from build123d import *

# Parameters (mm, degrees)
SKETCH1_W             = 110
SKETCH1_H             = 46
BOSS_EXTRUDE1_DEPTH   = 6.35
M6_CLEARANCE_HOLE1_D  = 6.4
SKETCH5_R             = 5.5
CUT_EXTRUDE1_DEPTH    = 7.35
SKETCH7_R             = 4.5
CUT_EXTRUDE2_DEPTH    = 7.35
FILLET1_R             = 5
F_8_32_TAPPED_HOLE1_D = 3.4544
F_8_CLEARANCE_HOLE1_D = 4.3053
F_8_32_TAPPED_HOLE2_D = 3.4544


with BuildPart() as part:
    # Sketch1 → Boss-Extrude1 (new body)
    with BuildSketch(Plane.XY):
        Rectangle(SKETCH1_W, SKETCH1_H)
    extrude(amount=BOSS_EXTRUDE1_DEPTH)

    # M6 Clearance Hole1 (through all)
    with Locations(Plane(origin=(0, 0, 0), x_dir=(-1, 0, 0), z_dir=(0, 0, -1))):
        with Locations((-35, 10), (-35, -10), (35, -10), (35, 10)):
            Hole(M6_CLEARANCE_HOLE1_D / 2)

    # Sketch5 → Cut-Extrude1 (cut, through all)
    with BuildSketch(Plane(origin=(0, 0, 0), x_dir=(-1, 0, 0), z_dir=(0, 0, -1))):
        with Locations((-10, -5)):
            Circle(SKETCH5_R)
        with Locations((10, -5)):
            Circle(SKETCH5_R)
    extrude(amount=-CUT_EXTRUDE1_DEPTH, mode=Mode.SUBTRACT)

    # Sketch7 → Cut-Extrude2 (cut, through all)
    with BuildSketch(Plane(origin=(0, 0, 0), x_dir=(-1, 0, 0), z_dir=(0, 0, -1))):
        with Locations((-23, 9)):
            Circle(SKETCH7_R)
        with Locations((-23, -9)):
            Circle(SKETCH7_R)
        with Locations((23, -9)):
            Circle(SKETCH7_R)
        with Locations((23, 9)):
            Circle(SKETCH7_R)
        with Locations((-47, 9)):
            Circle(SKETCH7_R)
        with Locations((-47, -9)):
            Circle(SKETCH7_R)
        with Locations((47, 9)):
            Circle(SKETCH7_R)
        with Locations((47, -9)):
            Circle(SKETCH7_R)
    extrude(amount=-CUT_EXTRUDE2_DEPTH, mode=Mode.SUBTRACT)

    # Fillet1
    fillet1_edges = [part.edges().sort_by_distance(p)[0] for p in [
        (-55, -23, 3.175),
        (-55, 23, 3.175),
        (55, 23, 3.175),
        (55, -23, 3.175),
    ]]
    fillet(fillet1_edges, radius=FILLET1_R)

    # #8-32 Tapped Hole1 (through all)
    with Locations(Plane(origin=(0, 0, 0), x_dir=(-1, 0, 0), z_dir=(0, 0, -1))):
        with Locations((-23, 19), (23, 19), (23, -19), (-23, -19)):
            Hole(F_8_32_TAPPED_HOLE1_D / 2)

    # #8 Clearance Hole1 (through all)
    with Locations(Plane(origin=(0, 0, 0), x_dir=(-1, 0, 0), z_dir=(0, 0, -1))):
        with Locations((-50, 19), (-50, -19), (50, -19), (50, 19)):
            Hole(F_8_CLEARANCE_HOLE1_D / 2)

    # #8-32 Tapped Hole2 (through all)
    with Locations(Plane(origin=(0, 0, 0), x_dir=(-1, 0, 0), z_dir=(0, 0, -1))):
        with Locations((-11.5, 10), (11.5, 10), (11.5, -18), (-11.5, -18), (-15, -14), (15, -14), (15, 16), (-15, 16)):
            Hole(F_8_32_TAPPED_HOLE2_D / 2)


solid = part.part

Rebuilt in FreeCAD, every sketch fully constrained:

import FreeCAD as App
import Part
import Sketcher
from FreeCAD import Vector


def edges_at(feature, points):
    """Names of the edges that pass closest to the given points."""
    edges = feature.Shape.Edges
    near = lambda p: min(range(len(edges)), key=lambda i: edges[i].distToShape(Part.Vertex(*p))[0])
    return sorted({f"Edge{near(p) + 1}" for p in points})


def add_polygon(sketch, points):
    """Adds a closed chain of lines whose ends are joined by coincident constraints."""
    first, n = sketch.GeometryCount, len(points)
    for a, b in zip(points, points[1:] + points[:1]):
        sketch.addGeometry(Part.LineSegment(App.Vector(*a, 0), App.Vector(*b, 0)), False)
    for i in range(n):
        sketch.addConstraint(Sketcher.Constraint("Coincident", first + i, 2, first + (i + 1) % n, 1))

doc = App.newDocument("Part")
body = doc.addObject("PartDesign::Body", "Body")

sketch1 = body.newObject("Sketcher::SketchObject", "Sketch")
sketch1.AttachmentSupport = (doc.getObject("XY_Plane"), [""])
sketch1.MapMode = "FlatFace"
add_polygon(sketch1, [(-55, 23), (-55, -23), (55, -23), (55, 23)])
sketch1.addConstraint([
    Sketcher.Constraint("Vertical", 0),
    Sketcher.Constraint("Horizontal", 1),
    Sketcher.Constraint("Vertical", 2),
    Sketcher.Constraint("Horizontal", 3),
    Sketcher.Constraint("Symmetric", 0, 2, 2, 2, -1, 1),
    Sketcher.Constraint("DistanceX", 1, 1, 1, 2, 110.0),
    Sketcher.Constraint("DistanceY", 0, 2, 0, 1, 46.0),
])
pad1 = body.newObject("PartDesign::Pad", "Pad")
pad1.Profile = sketch1
pad1.Length = 6.35

sketch2 = body.newObject("Sketcher::SketchObject", "Sketch001")
sketch2.AttachmentSupport = (doc.getObject("XY_Plane"), [""])
sketch2.MapMode = "FlatFace"
sketch2.addGeometry([
    Part.Circle(Vector(35, 10, 0), Vector(0, 0, 1), 3.2),
    Part.Circle(Vector(35, -10, 0), Vector(0, 0, 1), 3.2),
    Part.Circle(Vector(-35, -10, 0), Vector(0, 0, 1), 3.2),
    Part.Circle(Vector(-35, 10, 0), Vector(0, 0, 1), 3.2),
], False)
sketch2.addConstraint([
    Sketcher.Constraint("Equal", 0, 1),
    Sketcher.Constraint("Equal", 1, 2),
    Sketcher.Constraint("Equal", 2, 3),
    Sketcher.Constraint("Symmetric", 0, 3, 2, 3, -1, 1),
    Sketcher.Constraint("Symmetric", 1, 3, 3, 3, -1, 1),
    Sketcher.Constraint("Symmetric", 1, 3, 2, 3, -2),
    Sketcher.Constraint("Diameter", 0, 6.4),
    Sketcher.Constraint("DistanceX", -1, 1, 0, 3, 35.0),
    Sketcher.Constraint("DistanceY", -1, 1, 0, 3, 10.0),
])
doc.recompute()
hole = body.newObject("PartDesign::Hole", "Hole")
hole.Profile = sketch2
hole.ThreadType = "None"
hole.Diameter = 6.4
hole.DepthType = "ThroughAll"
hole.Reversed = True

sketch3 = body.newObject("Sketcher::SketchObject", "Sketch002")
sketch3.AttachmentSupport = (doc.getObject("XY_Plane"), [""])
sketch3.MapMode = "FlatFace"
sketch3.addGeometry([
    Part.Circle(Vector(10, -5, 0), Vector(0, 0, 1), 6),
    Part.Circle(Vector(-10, -5, 0), Vector(0, 0, 1), 6),
], False)
sketch3.addConstraint([
    Sketcher.Constraint("Equal", 0, 1),
    Sketcher.Constraint("Symmetric", 0, 3, 1, 3, -2),
    Sketcher.Constraint("Diameter", 0, 11.0),
    Sketcher.Constraint("DistanceX", -1, 1, 0, 3, 10.0),
    Sketcher.Constraint("DistanceY", 0, 3, -1, 1, 5.0),
])
pocket1 = body.newObject("PartDesign::Pocket", "Pocket")
pocket1.Profile = sketch3
pocket1.Type = "ThroughAll"
pocket1.Reversed = True

sketch4 = body.newObject("Sketcher::SketchObject", "Sketch003")
sketch4.AttachmentSupport = (doc.getObject("XY_Plane"), [""])
sketch4.MapMode = "FlatFace"
sketch4.addGeometry([
    Part.Circle(Vector(23, 9, 0), Vector(0, 0, 1), 4.5),
    Part.Circle(Vector(23, -9, 0), Vector(0, 0, 1), 4.5),
    Part.Circle(Vector(-23, -9, 0), Vector(0, 0, 1), 4.5),
    Part.Circle(Vector(-23, 9, 0), Vector(0, 0, 1), 4.5),
    Part.Circle(Vector(47, 9, 0), Vector(0, 0, 1), 4.5),
    Part.Circle(Vector(47, -9, 0), Vector(0, 0, 1), 4.5),
    Part.Circle(Vector(-47, 9, 0), Vector(0, 0, 1), 4.5),
    Part.Circle(Vector(-47, -9, 0), Vector(0, 0, 1), 4.5),
], False)
sketch4.addConstraint([
    Sketcher.Constraint("Equal", 0, 1),
    Sketcher.Constraint("Equal", 1, 2),
    Sketcher.Constraint("Equal", 2, 3),
    Sketcher.Constraint("Equal", 3, 4),
    Sketcher.Constraint("Equal", 4, 5),
    Sketcher.Constraint("Equal", 5, 6),
    Sketcher.Constraint("Equal", 6, 7),
    Sketcher.Constraint("Symmetric", 0, 3, 2, 3, -1, 1),
    Sketcher.Constraint("Symmetric", 1, 3, 3, 3, -1, 1),
    Sketcher.Constraint("Symmetric", 5, 3, 6, 3, -1, 1),
    Sketcher.Constraint("Symmetric", 4, 3, 7, 3, -1, 1),
    Sketcher.Constraint("Symmetric", 1, 3, 2, 3, -2),
    Sketcher.Constraint("Symmetric", 4, 3, 6, 3, -2),
    Sketcher.Constraint("Horizontal", 3, 3, 4, 3),
    Sketcher.Constraint("Diameter", 0, 9.0),
    Sketcher.Constraint("DistanceX", -1, 1, 0, 3, 23.0),
    Sketcher.Constraint("DistanceY", -1, 1, 0, 3, 9.0),
    Sketcher.Constraint("DistanceX", -1, 1, 4, 3, 47.0),
])
pocket2 = body.newObject("PartDesign::Pocket", "Pocket001")
pocket2.Profile = sketch4
pocket2.Type = "ThroughAll"
pocket2.Reversed = True
doc.recompute()

fillet = body.newObject("PartDesign::Fillet", "Fillet")
fillet.Base = (pocket2, edges_at(pocket2, [
    (-55, -23, 3.175),
    (-55, 23, 3.175),
    (55, 23, 3.175),
    (55, -23, 3.175),
]))
fillet.Radius = 5

sketch5 = body.newObject("Sketcher::SketchObject", "Sketch004")
sketch5.AttachmentSupport = (doc.getObject("XY_Plane"), [""])
sketch5.MapMode = "FlatFace"
sketch5.addGeometry([
    Part.Circle(Vector(23, 19, 0), Vector(0, 0, 1), 1.7),
    Part.Circle(Vector(-23, 19, 0), Vector(0, 0, 1), 1.7),
    Part.Circle(Vector(-23, -19, 0), Vector(0, 0, 1), 1.7),
    Part.Circle(Vector(23, -19, 0), Vector(0, 0, 1), 1.7),
], False)
sketch5.addConstraint([
    Sketcher.Constraint("Equal", 0, 1),
    Sketcher.Constraint("Equal", 1, 2),
    Sketcher.Constraint("Equal", 2, 3),
    Sketcher.Constraint("Symmetric", 0, 3, 2, 3, -1, 1),
    Sketcher.Constraint("Symmetric", 1, 3, 3, 3, -1, 1),
    Sketcher.Constraint("Symmetric", 0, 3, 1, 3, -2),
    Sketcher.Constraint("DistanceX", -1, 1, 0, 3, 23.0),
    Sketcher.Constraint("DistanceY", -1, 1, 0, 3, 19.0),
    Sketcher.Constraint("Diameter", 0, 3.4544),
])
doc.recompute()
hole2 = body.newObject("PartDesign::Hole", "Hole001")
hole2.Profile = sketch5
hole2.ThreadType = "None"
hole2.Diameter = 3.4544
hole2.DepthType = "ThroughAll"
hole2.Reversed = True

sketch6 = body.newObject("Sketcher::SketchObject", "Sketch005")
sketch6.AttachmentSupport = (doc.getObject("XY_Plane"), [""])
sketch6.MapMode = "FlatFace"
sketch6.addGeometry([
    Part.Circle(Vector(50, 19, 0), Vector(0, 0, 1), 2.2),
    Part.Circle(Vector(50, -19, 0), Vector(0, 0, 1), 2.2),
    Part.Circle(Vector(-50, -19, 0), Vector(0, 0, 1), 2.2),
    Part.Circle(Vector(-50, 19, 0), Vector(0, 0, 1), 2.2),
], False)
sketch6.addConstraint([
    Sketcher.Constraint("Equal", 0, 1),
    Sketcher.Constraint("Equal", 1, 2),
    Sketcher.Constraint("Equal", 2, 3),
    Sketcher.Constraint("Symmetric", 0, 3, 2, 3, -1, 1),
    Sketcher.Constraint("Symmetric", 1, 3, 3, 3, -1, 1),
    Sketcher.Constraint("Symmetric", 1, 3, 2, 3, -2),
    Sketcher.Constraint("DistanceX", -1, 1, 0, 3, 50.0),
    Sketcher.Constraint("DistanceY", -1, 1, 0, 3, 19.0),
    Sketcher.Constraint("Diameter", 0, 4.3053),
])
doc.recompute()
hole3 = body.newObject("PartDesign::Hole", "Hole002")
hole3.Profile = sketch6
hole3.ThreadType = "None"
hole3.Diameter = 4.3053
hole3.DepthType = "ThroughAll"
hole3.Reversed = True

sketch7 = body.newObject("Sketcher::SketchObject", "Sketch006")
sketch7.AttachmentSupport = (doc.getObject("XY_Plane"), [""])
sketch7.MapMode = "FlatFace"
sketch7.addGeometry([
    Part.Circle(Vector(11.5, 10, 0), Vector(0, 0, 1), 1.7),
    Part.Circle(Vector(-11.5, 10, 0), Vector(0, 0, 1), 1.7),
    Part.Circle(Vector(-11.5, -18, 0), Vector(0, 0, 1), 1.7),
    Part.Circle(Vector(11.5, -18, 0), Vector(0, 0, 1), 1.7),
    Part.Circle(Vector(15, -14, 0), Vector(0, 0, 1), 1.7),
    Part.Circle(Vector(-15, -14, 0), Vector(0, 0, 1), 1.7),
    Part.Circle(Vector(-15, 16, 0), Vector(0, 0, 1), 1.7),
    Part.Circle(Vector(15, 16, 0), Vector(0, 0, 1), 1.7),
], False)
sketch7.addConstraint([
    Sketcher.Constraint("Equal", 0, 1),
    Sketcher.Constraint("Equal", 1, 2),
    Sketcher.Constraint("Equal", 2, 3),
    Sketcher.Constraint("Equal", 3, 4),
    Sketcher.Constraint("Equal", 4, 5),
    Sketcher.Constraint("Equal", 5, 6),
    Sketcher.Constraint("Equal", 6, 7),
    Sketcher.Constraint("Symmetric", 0, 3, 1, 3, -2),
    Sketcher.Constraint("Symmetric", 2, 3, 3, 3, -2),
    Sketcher.Constraint("Symmetric", 4, 3, 5, 3, -2),
    Sketcher.Constraint("Symmetric", 6, 3, 7, 3, -2),
    Sketcher.Constraint("Vertical", 1, 3, 2, 3),
    Sketcher.Constraint("Vertical", 5, 3, 6, 3),
    Sketcher.Constraint("DistanceY", -1, 1, 0, 3, 10.0),
    Sketcher.Constraint("DistanceY", 2, 3, -1, 1, 18.0),
    Sketcher.Constraint("DistanceX", -1, 1, 4, 3, 15.0),
    Sketcher.Constraint("DistanceY", 4, 3, -1, 1, 14.0),
    Sketcher.Constraint("DistanceY", -1, 1, 6, 3, 16.0),
    Sketcher.Constraint("DistanceX", 1, 3, 0, 3, 23.0),
    Sketcher.Constraint("Diameter", 0, 3.4544),
])
doc.recompute()
hole4 = body.newObject("PartDesign::Hole", "Hole003")
hole4.Profile = sketch7
hole4.ThreadType = "None"
hole4.Diameter = 3.4544
hole4.DepthType = "ThroughAll"
hole4.Reversed = True

doc.recompute()
